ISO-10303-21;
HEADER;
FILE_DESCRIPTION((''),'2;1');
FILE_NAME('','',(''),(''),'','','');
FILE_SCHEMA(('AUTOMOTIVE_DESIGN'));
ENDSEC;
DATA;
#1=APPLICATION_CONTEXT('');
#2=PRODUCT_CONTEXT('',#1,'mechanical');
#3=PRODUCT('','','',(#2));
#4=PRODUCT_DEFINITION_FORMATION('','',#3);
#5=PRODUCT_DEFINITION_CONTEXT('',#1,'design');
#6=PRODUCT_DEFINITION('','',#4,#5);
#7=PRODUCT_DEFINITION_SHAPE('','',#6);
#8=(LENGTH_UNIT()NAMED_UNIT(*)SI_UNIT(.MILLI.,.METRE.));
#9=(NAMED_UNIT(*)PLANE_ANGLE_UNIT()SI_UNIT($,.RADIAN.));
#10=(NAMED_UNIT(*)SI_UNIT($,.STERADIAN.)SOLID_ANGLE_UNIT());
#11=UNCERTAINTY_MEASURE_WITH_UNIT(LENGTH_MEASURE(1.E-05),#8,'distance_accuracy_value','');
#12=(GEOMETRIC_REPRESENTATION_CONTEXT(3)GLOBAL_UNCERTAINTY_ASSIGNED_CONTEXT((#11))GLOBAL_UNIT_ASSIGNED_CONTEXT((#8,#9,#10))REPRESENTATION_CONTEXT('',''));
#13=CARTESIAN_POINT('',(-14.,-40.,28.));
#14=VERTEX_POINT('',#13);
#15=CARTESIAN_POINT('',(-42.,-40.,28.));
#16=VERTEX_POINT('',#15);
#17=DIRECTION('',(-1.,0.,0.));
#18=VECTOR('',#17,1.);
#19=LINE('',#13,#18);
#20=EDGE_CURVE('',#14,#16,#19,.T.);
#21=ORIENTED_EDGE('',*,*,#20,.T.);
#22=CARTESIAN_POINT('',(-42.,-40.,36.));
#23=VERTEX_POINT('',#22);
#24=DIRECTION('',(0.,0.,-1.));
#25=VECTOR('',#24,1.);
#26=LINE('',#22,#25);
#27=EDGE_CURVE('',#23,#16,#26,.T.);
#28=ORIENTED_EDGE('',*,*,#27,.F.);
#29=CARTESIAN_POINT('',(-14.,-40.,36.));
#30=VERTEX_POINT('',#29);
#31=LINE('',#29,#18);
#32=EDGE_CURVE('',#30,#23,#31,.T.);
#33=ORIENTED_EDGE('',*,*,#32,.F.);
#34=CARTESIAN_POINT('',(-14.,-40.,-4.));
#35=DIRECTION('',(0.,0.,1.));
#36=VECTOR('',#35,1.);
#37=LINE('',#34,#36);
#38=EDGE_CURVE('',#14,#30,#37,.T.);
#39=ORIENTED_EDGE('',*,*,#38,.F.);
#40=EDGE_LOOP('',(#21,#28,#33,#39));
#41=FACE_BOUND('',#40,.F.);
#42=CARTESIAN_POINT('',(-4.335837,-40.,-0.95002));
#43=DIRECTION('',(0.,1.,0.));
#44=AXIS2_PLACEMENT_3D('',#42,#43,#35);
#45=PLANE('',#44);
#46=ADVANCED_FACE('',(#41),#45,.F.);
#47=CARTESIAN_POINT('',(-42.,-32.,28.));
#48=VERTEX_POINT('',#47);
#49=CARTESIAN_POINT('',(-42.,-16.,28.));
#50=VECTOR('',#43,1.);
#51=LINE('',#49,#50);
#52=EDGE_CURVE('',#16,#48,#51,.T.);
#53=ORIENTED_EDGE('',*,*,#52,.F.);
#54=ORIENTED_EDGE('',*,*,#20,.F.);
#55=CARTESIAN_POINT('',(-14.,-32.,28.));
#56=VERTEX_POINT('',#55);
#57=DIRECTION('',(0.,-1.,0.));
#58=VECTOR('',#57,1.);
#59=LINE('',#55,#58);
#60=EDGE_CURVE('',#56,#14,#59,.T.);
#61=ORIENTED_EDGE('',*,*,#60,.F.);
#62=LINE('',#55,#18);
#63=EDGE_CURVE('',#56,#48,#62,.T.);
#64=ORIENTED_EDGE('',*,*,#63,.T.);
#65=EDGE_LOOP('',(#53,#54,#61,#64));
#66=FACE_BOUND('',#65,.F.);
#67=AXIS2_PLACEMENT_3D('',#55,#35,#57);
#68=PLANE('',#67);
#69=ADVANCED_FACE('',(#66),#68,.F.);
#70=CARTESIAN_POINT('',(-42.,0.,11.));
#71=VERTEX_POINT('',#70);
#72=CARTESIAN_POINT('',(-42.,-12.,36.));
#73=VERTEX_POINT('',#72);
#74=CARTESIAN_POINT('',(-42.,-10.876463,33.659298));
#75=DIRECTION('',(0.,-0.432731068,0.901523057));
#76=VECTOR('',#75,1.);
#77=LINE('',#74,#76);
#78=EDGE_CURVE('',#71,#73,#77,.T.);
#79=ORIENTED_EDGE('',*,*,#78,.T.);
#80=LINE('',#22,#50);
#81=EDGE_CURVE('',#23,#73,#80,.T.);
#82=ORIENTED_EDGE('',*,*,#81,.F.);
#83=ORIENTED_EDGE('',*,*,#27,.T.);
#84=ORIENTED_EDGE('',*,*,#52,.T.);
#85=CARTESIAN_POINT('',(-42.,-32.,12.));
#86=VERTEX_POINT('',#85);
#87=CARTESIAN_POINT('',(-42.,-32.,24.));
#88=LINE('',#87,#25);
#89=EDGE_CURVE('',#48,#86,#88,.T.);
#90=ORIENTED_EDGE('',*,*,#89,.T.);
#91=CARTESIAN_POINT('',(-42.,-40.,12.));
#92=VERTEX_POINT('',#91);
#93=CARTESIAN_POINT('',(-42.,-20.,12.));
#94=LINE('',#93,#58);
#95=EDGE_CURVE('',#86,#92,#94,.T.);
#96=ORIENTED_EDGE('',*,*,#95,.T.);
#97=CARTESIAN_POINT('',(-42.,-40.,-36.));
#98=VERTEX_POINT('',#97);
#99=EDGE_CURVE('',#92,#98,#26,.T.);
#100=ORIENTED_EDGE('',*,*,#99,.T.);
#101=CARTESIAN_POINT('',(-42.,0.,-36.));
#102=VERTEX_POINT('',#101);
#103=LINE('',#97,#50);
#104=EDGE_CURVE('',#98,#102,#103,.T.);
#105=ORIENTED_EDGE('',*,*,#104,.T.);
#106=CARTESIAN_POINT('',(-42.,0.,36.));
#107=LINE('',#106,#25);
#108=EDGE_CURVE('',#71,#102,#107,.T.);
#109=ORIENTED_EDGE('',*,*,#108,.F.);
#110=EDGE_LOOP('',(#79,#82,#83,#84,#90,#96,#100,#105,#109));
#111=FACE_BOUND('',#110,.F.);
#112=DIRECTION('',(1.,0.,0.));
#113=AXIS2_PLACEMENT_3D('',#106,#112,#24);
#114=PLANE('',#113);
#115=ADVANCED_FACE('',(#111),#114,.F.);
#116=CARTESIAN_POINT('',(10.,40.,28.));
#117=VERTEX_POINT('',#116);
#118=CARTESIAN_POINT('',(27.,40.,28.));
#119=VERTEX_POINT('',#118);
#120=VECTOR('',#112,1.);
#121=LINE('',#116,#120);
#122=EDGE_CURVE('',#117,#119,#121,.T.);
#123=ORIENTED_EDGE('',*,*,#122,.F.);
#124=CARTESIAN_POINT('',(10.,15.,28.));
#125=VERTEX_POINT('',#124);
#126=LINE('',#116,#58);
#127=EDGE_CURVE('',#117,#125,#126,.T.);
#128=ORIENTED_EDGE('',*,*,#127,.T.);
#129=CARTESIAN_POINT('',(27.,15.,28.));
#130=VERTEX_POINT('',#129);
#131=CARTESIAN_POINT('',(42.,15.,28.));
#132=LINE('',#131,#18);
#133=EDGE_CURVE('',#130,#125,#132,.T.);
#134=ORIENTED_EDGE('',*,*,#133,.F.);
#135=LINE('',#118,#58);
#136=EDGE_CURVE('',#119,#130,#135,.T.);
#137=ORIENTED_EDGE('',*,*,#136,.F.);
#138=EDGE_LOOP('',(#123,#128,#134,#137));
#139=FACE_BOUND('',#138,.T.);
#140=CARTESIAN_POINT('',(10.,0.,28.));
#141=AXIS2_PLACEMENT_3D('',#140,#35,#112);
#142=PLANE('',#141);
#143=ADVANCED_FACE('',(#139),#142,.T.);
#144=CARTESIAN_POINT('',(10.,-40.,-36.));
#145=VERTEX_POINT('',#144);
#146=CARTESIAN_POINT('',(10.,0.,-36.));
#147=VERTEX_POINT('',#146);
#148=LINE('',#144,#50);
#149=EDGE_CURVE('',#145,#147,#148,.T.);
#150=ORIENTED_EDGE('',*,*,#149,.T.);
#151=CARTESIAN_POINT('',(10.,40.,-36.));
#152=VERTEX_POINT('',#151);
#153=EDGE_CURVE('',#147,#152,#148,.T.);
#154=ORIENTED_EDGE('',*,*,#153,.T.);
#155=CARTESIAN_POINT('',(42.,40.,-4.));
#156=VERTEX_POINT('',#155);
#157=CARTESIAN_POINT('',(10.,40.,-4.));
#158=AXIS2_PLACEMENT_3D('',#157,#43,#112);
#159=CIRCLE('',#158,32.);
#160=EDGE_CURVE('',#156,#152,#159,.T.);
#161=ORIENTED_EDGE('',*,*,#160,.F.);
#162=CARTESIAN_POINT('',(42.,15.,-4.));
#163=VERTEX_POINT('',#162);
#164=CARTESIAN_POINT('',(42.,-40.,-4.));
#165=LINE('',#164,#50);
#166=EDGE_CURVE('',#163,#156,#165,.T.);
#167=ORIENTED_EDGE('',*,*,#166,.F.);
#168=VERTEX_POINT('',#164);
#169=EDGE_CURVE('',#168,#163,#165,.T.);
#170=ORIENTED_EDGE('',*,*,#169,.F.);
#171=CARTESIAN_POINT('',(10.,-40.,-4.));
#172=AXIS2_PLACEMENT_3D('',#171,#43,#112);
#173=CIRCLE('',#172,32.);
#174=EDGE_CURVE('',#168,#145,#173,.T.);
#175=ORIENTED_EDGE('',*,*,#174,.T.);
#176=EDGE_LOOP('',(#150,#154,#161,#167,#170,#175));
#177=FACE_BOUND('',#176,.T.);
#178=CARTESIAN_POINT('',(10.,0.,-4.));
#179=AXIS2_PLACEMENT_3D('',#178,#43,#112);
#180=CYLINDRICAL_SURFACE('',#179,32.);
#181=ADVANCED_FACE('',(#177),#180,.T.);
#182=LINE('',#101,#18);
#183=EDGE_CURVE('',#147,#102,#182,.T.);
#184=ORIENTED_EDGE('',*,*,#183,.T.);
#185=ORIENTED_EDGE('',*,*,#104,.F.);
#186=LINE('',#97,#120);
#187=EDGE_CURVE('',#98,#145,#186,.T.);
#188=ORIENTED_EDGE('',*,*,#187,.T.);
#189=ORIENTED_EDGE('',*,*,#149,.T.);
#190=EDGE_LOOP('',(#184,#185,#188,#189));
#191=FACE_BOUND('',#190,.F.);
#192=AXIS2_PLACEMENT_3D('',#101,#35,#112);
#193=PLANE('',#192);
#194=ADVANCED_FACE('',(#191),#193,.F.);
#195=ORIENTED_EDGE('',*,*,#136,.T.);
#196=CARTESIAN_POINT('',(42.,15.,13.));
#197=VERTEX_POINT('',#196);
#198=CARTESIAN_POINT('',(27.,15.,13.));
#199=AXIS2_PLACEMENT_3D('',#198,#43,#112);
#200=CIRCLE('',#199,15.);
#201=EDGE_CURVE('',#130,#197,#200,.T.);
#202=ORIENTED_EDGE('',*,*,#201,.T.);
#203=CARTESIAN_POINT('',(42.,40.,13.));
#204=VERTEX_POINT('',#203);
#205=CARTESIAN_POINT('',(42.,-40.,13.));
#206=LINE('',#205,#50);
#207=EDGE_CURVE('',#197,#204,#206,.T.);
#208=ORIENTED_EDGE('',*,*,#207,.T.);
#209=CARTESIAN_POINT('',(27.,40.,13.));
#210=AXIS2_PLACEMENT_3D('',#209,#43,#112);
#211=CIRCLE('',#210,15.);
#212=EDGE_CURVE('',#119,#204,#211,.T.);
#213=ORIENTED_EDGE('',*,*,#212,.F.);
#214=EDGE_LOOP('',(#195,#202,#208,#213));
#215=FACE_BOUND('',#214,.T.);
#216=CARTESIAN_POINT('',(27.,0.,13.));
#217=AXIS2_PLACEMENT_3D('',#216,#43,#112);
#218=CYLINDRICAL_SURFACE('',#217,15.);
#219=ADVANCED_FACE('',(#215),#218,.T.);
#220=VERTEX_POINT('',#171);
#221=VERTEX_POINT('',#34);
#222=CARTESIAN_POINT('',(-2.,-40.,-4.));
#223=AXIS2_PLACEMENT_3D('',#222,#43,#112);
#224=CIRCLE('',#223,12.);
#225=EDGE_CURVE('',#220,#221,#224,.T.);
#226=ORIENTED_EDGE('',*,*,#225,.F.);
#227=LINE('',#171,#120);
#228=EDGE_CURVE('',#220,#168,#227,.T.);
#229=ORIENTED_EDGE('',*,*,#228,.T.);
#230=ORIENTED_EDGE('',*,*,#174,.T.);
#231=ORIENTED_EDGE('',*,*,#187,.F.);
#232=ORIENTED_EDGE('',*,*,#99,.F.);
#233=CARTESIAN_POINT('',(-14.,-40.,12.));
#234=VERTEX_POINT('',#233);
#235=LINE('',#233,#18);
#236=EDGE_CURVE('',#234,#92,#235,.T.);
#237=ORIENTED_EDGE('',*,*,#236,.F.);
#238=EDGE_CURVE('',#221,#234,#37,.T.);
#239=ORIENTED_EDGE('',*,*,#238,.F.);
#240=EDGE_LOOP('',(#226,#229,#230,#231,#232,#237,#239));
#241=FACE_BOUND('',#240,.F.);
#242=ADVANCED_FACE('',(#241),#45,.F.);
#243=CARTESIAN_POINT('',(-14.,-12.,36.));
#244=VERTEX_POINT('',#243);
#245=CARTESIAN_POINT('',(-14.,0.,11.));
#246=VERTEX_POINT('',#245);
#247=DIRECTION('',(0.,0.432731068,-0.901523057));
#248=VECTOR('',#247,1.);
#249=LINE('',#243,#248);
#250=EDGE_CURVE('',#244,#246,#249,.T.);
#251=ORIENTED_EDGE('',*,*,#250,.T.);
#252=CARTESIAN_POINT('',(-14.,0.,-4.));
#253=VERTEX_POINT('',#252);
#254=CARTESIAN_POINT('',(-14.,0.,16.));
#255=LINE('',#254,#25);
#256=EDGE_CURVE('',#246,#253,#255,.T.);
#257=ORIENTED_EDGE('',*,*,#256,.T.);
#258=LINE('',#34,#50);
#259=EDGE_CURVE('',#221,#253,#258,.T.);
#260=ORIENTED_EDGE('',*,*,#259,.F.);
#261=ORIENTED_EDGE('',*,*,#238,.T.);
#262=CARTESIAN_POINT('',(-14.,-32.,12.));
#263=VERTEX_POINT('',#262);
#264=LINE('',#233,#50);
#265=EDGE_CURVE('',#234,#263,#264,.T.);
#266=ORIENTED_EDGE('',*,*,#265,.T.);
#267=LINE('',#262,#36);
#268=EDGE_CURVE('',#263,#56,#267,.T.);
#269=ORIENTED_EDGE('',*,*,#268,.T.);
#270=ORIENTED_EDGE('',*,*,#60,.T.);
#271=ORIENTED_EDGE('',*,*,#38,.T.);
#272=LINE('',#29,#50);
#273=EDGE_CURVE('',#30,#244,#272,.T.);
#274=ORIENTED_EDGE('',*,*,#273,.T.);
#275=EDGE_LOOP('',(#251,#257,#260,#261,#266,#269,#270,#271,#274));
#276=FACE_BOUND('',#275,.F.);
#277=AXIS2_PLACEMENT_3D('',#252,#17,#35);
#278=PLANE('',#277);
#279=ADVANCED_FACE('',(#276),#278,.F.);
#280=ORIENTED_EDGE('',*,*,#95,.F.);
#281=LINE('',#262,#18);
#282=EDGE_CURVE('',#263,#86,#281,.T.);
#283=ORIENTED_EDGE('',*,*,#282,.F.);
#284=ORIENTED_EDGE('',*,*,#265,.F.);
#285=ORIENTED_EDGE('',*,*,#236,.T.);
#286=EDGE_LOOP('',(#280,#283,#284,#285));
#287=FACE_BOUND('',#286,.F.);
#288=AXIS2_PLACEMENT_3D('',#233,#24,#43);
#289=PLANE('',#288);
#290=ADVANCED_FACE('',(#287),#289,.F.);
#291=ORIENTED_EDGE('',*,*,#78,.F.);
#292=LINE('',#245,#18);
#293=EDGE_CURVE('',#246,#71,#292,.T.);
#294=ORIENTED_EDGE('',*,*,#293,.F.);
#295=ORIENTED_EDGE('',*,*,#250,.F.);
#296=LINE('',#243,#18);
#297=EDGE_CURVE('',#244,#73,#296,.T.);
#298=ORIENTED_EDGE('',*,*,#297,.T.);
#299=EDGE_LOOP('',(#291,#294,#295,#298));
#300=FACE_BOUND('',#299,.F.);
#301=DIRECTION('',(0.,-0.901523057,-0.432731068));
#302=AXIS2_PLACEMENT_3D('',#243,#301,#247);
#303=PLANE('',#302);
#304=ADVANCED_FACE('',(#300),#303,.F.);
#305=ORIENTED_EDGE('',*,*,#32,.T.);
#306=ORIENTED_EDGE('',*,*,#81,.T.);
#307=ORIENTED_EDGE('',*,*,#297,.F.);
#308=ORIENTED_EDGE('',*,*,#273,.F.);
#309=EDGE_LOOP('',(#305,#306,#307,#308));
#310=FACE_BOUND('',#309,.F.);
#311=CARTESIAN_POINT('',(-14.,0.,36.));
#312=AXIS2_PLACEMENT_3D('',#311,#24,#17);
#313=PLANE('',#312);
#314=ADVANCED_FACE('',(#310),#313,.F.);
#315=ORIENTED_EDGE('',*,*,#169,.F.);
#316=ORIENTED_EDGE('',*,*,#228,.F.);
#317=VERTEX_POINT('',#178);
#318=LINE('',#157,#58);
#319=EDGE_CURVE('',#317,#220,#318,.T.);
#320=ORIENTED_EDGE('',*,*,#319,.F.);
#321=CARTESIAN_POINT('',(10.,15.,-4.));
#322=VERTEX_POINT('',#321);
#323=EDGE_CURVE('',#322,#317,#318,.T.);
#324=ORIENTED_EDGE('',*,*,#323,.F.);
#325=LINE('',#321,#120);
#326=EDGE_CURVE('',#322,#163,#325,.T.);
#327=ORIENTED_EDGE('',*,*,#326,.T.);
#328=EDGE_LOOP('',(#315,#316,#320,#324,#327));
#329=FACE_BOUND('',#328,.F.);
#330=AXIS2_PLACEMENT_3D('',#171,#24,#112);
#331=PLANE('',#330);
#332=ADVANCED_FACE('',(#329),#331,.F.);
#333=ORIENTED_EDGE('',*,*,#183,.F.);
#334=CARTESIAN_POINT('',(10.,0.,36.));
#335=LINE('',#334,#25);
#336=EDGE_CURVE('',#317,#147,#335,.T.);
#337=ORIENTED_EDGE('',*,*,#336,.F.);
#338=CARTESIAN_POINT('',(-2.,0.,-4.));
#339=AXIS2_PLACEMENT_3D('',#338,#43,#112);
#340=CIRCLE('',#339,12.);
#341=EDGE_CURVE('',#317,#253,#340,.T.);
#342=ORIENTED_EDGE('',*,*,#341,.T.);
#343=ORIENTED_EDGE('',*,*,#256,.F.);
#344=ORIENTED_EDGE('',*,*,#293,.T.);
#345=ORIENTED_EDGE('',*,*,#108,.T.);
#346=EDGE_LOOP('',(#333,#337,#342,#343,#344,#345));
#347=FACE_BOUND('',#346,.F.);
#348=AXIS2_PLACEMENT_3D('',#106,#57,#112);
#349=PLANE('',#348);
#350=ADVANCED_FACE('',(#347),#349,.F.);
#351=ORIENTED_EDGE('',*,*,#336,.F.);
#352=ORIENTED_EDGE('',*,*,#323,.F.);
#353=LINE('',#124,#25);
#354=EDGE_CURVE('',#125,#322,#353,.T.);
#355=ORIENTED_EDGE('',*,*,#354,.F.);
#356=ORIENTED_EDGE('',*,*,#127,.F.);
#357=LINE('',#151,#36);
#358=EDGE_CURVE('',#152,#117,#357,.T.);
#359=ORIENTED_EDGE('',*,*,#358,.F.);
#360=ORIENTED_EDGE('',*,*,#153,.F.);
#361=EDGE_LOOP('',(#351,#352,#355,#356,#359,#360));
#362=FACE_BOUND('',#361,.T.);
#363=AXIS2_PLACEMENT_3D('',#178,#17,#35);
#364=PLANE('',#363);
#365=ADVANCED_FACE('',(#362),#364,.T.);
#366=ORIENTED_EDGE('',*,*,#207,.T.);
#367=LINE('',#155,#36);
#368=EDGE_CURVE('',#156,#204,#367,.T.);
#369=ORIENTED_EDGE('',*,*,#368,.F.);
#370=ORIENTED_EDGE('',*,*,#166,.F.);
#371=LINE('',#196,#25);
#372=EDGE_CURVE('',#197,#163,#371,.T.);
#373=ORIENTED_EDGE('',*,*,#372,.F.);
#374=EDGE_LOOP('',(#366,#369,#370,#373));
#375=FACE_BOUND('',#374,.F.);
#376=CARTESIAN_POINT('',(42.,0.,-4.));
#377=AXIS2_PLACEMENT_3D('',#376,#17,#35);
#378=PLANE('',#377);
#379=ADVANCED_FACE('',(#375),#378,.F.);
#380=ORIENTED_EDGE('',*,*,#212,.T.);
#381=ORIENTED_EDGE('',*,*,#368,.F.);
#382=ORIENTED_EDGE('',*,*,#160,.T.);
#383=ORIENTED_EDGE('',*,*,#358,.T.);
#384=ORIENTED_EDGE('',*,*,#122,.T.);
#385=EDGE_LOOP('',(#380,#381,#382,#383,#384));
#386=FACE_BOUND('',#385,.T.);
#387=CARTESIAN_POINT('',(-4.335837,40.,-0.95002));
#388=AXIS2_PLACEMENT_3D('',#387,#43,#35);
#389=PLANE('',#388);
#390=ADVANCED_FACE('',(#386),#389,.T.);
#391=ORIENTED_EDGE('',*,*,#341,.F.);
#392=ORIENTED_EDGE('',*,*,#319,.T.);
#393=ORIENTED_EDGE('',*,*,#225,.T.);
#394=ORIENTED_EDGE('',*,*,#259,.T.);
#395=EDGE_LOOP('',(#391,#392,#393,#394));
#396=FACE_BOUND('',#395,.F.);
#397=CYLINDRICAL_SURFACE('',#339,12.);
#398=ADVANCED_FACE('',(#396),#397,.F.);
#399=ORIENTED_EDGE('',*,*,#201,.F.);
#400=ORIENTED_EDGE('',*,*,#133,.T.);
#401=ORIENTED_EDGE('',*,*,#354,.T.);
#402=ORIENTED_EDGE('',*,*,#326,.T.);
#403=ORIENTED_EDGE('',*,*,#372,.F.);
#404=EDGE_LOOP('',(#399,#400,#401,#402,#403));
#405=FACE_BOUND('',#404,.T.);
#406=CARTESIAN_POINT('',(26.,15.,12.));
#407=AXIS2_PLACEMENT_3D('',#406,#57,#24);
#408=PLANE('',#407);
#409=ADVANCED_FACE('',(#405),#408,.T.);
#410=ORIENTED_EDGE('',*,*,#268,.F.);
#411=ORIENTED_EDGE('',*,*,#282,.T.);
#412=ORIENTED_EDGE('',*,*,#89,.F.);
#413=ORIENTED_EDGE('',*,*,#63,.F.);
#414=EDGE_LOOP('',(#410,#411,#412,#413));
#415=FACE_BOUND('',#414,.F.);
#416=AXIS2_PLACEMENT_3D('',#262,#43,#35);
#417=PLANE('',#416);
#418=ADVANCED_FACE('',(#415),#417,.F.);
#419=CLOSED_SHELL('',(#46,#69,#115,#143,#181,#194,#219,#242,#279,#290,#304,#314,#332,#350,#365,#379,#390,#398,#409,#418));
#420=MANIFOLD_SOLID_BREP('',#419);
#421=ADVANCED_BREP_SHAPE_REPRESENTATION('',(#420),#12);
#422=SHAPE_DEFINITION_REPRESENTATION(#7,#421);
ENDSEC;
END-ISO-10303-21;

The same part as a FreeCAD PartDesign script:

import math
import FreeCAD as App
import Part
import Sketcher

V = App.Vector


def add_polygon(sketch, points):
    """Adds a closed chain of lines whose ends are joined by coincident constraints."""
    first, n = sketch.GeometryCount, len(points)
    for a, b in zip(points, points[1:] + points[:1]):
        sketch.addGeometry(Part.LineSegment(App.Vector(*a, 0), App.Vector(*b, 0)), False)
    for i in range(n):
        sketch.addConstraint(Sketcher.Constraint("Coincident", first + i, 2, first + (i + 1) % n, 1))

doc = App.newDocument("Part")
body = doc.addObject("PartDesign::Body", "Body")

sketch1 = body.newObject("Sketcher::SketchObject", "Sketch")
sketch1.AttachmentSupport = (doc.getObject("XZ_Plane"), [""])
sketch1.MapMode = "FlatFace"
sketch1.addGeometry([
    Part.ArcOfCircle(Part.Circle(V(27, 13, 0), V(0, 0, 1), 15), math.radians(0), math.radians(90)),
    Part.LineSegment(V(27, 28, 0), V(10, 28, 0)),
    Part.LineSegment(V(10, 28, 0), V(10, -4, 0)),
    Part.ArcOfCircle(Part.Circle(V(-2, -4, 0), V(0, 0, 1), 12), math.radians(180), math.radians(360)),
    Part.LineSegment(V(-14, -4, 0), V(-14, 36, 0)),
    Part.LineSegment(V(-14, 36, 0), V(-42, 36, 0)),
    Part.LineSegment(V(-42, 36, 0), V(-42, -36, 0)),
    Part.LineSegment(V(-42, -36, 0), V(10, -36, 0)),
    Part.ArcOfCircle(Part.Circle(V(10, -4, 0), V(0, 0, 1), 32), math.radians(-90), math.radians(0)),
    Part.LineSegment(V(42, -4, 0), V(42, 13, 0)),
], False)
sketch1.addConstraint([
    Sketcher.Constraint("Tangent", 0, 2, 1, 1),
    Sketcher.Constraint("Coincident", 1, 2, 2, 1),
    Sketcher.Constraint("Tangent", 2, 2, 3, 2),
    Sketcher.Constraint("Tangent", 3, 1, 4, 1),
    Sketcher.Constraint("Coincident", 4, 2, 5, 1),
    Sketcher.Constraint("Coincident", 5, 2, 6, 1),
    Sketcher.Constraint("Coincident", 6, 2, 7, 1),
    Sketcher.Constraint("Tangent", 7, 2, 8, 1),
    Sketcher.Constraint("Tangent", 8, 2, 9, 1),
    Sketcher.Constraint("Tangent", 9, 2, 0, 1),
    Sketcher.Constraint("Horizontal", 1),
    Sketcher.Constraint("Vertical", 2),
    Sketcher.Constraint("Vertical", 4),
    Sketcher.Constraint("Horizontal", 5),
    Sketcher.Constraint("Vertical", 6),
    Sketcher.Constraint("Horizontal", 7),
    Sketcher.Constraint("Vertical", 9),
    Sketcher.Constraint("Coincident", 2, 2, 8, 3),
    Sketcher.Constraint("Equal", 1, 9),
    Sketcher.Constraint("Radius", 0, 15.0),
    Sketcher.Constraint("Radius", 3, 12.0),
    Sketcher.Constraint("Radius", 8, 32.0),
    Sketcher.Constraint("DistanceX", 5, 2, 5, 1, 28.0),
    Sketcher.Constraint("DistanceY", 4, 1, 4, 2, 40.0),
    Sketcher.Constraint("DistanceX", -1, 1, 0, 3, 27.0),
    Sketcher.Constraint("DistanceY", -1, 1, 0, 3, 13.0),
])
pad1 = body.newObject("PartDesign::Pad", "Pad")
pad1.Profile = sketch1
pad1.Length = 80
pad1.Midplane = True

sketch2 = body.newObject("Sketcher::SketchObject", "Sketch001")
sketch2.AttachmentSupport = (doc.getObject("XZ_Plane"), [""])
sketch2.MapMode = "FlatFace"
sketch2.AttachmentOffset = App.Placement(V(0, 0, 40), App.Rotation())
add_polygon(sketch2, [(42, -4), (42, 28), (10, 28), (10, -4)])
sketch2.addConstraint([
    Sketcher.Constraint("Vertical", 0),
    Sketcher.Constraint("Horizontal", 1),
    Sketcher.Constraint("Vertical", 2),
    Sketcher.Constraint("Horizontal", 3),
    Sketcher.Constraint("Equal", 3, 0),
    Sketcher.Constraint("DistanceX", 1, 2, 1, 1, 32.0),
    Sketcher.Constraint("DistanceX", -1, 1, 0, 2, 42.0),
    Sketcher.Constraint("DistanceY", -1, 1, 0, 2, 28.0),
])
pocket1 = body.newObject("PartDesign::Pocket", "Pocket")
pocket1.Profile = sketch2
pocket1.Length = 55

sketch3 = body.newObject("Sketcher::SketchObject", "Sketch002")
sketch3.AttachmentSupport = (doc.getObject("XY_Plane"), [""])
sketch3.MapMode = "FlatFace"
sketch3.AttachmentOffset = App.Placement(V(0, 0, 36), App.Rotation())
add_polygon(sketch3, [(-42, 0), (10, 0), (10, 40), (-42, 40)])
sketch3.addConstraint([
    Sketcher.Constraint("Horizontal", 0),
    Sketcher.Constraint("Vertical", 1),
    Sketcher.Constraint("Horizontal", 2),
    Sketcher.Constraint("Vertical", 3),
    Sketcher.Constraint("PointOnObject", 0, 2, -1),
    Sketcher.Constraint("DistanceX", 0, 1, 0, 2, 52.0),
    Sketcher.Constraint("DistanceY", 1, 1, 1, 2, 40.0),
    Sketcher.Constraint("DistanceX", -1, 1, 0, 2, 10.0),
])
pocket2 = body.newObject("PartDesign::Pocket", "Pocket001")
pocket2.Profile = sketch3
pocket2.Type = "UpToFirst"

sketch4 = body.newObject("Sketcher::SketchObject", "Sketch003")
sketch4.AttachmentSupport = (doc.getObject("YZ_Plane"), [""])
sketch4.MapMode = "FlatFace"
sketch4.AttachmentOffset = App.Placement(V(0, 0, -14), App.Rotation())
add_polygon(sketch4, [(-32, 28), (-40, 28), (-40, 12), (-32, 12)])
add_polygon(sketch4, [(0, 36), (-12, 36), (0, 11)])
sketch4.addConstraint([
    Sketcher.Constraint("Horizontal", 0),
    Sketcher.Constraint("Vertical", 1),
    Sketcher.Constraint("Horizontal", 2),
    Sketcher.Constraint("Vertical", 3),
    Sketcher.Constraint("Horizontal", 4),
    Sketcher.Constraint("Vertical", 6),
    Sketcher.Constraint("PointOnObject", 5, 2, -2),
    Sketcher.Constraint("DistanceX", 0, 2, 0, 1, 8.0),
    Sketcher.Constraint("DistanceX", 4, 2, 4, 1, 12.0),
    Sketcher.Constraint("DistanceY", 1, 2, 1, 1, 16.0),
    Sketcher.Constraint("DistanceY", 6, 1, 6, 2, 25.0),
    Sketcher.Constraint("DistanceX", 0, 2, -1, 1, 40.0),
    Sketcher.Constraint("DistanceY", -1, 1, 0, 2, 28.0),
    Sketcher.Constraint("DistanceY", -1, 1, 4, 2, 36.0),
])
pocket3 = body.newObject("PartDesign::Pocket", "Pocket002")
pocket3.Profile = sketch4
pocket3.Type = "UpToFirst"

doc.recompute()
